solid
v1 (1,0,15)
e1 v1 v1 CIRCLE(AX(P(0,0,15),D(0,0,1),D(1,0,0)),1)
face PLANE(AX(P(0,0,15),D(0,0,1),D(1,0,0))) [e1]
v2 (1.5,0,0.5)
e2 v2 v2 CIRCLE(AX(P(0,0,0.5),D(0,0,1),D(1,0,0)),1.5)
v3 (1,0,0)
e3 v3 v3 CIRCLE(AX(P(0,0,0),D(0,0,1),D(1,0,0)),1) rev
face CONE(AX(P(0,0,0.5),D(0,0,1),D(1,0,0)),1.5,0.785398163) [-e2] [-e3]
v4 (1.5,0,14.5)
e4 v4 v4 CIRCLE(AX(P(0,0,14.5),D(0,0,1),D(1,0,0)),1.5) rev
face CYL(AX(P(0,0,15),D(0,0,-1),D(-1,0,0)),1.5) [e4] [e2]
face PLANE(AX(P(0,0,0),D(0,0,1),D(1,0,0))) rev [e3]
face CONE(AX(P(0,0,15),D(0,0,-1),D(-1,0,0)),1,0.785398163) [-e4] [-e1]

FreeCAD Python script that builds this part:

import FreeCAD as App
import Part
import Sketcher

V = App.Vector


def edges_at(feature, points):
    """Names of the edges that pass closest to the given points."""
    edges = feature.Shape.Edges
    near = lambda p: min(range(len(edges)), key=lambda i: edges[i].distToShape(Part.Vertex(*p))[0])
    return sorted({f"Edge{near(p) + 1}" for p in points})

doc = App.newDocument("Part")
body = doc.addObject("PartDesign::Body", "Body")

# Sketch on XY plane
sketch1 = body.newObject("Sketcher::SketchObject", "Sketch")
sketch1.AttachmentSupport = (doc.getObject("XY_Plane"), [""])
sketch1.MapMode = "FlatFace"
sketch1.addGeometry(Part.Circle(V(0, 0, 0), V(0, 0, 1), 1.5), False)
sketch1.addConstraint(Sketcher.Constraint("Coincident", 0, 3, -1, 1))
sketch1.addConstraint(Sketcher.Constraint("Diameter", 0, 3.0))
pad1 = body.newObject("PartDesign::Pad", "Pad")
pad1.Profile = sketch1
pad1.Length = 15
doc.recompute()

chamfer = body.newObject("PartDesign::Chamfer", "Chamfer")
chamfer.Base = (pad1, edges_at(pad1, [(-1.5, 0, 0), (-1.5, 0, 15)]))
chamfer.Size = 0.5

doc.recompute()
